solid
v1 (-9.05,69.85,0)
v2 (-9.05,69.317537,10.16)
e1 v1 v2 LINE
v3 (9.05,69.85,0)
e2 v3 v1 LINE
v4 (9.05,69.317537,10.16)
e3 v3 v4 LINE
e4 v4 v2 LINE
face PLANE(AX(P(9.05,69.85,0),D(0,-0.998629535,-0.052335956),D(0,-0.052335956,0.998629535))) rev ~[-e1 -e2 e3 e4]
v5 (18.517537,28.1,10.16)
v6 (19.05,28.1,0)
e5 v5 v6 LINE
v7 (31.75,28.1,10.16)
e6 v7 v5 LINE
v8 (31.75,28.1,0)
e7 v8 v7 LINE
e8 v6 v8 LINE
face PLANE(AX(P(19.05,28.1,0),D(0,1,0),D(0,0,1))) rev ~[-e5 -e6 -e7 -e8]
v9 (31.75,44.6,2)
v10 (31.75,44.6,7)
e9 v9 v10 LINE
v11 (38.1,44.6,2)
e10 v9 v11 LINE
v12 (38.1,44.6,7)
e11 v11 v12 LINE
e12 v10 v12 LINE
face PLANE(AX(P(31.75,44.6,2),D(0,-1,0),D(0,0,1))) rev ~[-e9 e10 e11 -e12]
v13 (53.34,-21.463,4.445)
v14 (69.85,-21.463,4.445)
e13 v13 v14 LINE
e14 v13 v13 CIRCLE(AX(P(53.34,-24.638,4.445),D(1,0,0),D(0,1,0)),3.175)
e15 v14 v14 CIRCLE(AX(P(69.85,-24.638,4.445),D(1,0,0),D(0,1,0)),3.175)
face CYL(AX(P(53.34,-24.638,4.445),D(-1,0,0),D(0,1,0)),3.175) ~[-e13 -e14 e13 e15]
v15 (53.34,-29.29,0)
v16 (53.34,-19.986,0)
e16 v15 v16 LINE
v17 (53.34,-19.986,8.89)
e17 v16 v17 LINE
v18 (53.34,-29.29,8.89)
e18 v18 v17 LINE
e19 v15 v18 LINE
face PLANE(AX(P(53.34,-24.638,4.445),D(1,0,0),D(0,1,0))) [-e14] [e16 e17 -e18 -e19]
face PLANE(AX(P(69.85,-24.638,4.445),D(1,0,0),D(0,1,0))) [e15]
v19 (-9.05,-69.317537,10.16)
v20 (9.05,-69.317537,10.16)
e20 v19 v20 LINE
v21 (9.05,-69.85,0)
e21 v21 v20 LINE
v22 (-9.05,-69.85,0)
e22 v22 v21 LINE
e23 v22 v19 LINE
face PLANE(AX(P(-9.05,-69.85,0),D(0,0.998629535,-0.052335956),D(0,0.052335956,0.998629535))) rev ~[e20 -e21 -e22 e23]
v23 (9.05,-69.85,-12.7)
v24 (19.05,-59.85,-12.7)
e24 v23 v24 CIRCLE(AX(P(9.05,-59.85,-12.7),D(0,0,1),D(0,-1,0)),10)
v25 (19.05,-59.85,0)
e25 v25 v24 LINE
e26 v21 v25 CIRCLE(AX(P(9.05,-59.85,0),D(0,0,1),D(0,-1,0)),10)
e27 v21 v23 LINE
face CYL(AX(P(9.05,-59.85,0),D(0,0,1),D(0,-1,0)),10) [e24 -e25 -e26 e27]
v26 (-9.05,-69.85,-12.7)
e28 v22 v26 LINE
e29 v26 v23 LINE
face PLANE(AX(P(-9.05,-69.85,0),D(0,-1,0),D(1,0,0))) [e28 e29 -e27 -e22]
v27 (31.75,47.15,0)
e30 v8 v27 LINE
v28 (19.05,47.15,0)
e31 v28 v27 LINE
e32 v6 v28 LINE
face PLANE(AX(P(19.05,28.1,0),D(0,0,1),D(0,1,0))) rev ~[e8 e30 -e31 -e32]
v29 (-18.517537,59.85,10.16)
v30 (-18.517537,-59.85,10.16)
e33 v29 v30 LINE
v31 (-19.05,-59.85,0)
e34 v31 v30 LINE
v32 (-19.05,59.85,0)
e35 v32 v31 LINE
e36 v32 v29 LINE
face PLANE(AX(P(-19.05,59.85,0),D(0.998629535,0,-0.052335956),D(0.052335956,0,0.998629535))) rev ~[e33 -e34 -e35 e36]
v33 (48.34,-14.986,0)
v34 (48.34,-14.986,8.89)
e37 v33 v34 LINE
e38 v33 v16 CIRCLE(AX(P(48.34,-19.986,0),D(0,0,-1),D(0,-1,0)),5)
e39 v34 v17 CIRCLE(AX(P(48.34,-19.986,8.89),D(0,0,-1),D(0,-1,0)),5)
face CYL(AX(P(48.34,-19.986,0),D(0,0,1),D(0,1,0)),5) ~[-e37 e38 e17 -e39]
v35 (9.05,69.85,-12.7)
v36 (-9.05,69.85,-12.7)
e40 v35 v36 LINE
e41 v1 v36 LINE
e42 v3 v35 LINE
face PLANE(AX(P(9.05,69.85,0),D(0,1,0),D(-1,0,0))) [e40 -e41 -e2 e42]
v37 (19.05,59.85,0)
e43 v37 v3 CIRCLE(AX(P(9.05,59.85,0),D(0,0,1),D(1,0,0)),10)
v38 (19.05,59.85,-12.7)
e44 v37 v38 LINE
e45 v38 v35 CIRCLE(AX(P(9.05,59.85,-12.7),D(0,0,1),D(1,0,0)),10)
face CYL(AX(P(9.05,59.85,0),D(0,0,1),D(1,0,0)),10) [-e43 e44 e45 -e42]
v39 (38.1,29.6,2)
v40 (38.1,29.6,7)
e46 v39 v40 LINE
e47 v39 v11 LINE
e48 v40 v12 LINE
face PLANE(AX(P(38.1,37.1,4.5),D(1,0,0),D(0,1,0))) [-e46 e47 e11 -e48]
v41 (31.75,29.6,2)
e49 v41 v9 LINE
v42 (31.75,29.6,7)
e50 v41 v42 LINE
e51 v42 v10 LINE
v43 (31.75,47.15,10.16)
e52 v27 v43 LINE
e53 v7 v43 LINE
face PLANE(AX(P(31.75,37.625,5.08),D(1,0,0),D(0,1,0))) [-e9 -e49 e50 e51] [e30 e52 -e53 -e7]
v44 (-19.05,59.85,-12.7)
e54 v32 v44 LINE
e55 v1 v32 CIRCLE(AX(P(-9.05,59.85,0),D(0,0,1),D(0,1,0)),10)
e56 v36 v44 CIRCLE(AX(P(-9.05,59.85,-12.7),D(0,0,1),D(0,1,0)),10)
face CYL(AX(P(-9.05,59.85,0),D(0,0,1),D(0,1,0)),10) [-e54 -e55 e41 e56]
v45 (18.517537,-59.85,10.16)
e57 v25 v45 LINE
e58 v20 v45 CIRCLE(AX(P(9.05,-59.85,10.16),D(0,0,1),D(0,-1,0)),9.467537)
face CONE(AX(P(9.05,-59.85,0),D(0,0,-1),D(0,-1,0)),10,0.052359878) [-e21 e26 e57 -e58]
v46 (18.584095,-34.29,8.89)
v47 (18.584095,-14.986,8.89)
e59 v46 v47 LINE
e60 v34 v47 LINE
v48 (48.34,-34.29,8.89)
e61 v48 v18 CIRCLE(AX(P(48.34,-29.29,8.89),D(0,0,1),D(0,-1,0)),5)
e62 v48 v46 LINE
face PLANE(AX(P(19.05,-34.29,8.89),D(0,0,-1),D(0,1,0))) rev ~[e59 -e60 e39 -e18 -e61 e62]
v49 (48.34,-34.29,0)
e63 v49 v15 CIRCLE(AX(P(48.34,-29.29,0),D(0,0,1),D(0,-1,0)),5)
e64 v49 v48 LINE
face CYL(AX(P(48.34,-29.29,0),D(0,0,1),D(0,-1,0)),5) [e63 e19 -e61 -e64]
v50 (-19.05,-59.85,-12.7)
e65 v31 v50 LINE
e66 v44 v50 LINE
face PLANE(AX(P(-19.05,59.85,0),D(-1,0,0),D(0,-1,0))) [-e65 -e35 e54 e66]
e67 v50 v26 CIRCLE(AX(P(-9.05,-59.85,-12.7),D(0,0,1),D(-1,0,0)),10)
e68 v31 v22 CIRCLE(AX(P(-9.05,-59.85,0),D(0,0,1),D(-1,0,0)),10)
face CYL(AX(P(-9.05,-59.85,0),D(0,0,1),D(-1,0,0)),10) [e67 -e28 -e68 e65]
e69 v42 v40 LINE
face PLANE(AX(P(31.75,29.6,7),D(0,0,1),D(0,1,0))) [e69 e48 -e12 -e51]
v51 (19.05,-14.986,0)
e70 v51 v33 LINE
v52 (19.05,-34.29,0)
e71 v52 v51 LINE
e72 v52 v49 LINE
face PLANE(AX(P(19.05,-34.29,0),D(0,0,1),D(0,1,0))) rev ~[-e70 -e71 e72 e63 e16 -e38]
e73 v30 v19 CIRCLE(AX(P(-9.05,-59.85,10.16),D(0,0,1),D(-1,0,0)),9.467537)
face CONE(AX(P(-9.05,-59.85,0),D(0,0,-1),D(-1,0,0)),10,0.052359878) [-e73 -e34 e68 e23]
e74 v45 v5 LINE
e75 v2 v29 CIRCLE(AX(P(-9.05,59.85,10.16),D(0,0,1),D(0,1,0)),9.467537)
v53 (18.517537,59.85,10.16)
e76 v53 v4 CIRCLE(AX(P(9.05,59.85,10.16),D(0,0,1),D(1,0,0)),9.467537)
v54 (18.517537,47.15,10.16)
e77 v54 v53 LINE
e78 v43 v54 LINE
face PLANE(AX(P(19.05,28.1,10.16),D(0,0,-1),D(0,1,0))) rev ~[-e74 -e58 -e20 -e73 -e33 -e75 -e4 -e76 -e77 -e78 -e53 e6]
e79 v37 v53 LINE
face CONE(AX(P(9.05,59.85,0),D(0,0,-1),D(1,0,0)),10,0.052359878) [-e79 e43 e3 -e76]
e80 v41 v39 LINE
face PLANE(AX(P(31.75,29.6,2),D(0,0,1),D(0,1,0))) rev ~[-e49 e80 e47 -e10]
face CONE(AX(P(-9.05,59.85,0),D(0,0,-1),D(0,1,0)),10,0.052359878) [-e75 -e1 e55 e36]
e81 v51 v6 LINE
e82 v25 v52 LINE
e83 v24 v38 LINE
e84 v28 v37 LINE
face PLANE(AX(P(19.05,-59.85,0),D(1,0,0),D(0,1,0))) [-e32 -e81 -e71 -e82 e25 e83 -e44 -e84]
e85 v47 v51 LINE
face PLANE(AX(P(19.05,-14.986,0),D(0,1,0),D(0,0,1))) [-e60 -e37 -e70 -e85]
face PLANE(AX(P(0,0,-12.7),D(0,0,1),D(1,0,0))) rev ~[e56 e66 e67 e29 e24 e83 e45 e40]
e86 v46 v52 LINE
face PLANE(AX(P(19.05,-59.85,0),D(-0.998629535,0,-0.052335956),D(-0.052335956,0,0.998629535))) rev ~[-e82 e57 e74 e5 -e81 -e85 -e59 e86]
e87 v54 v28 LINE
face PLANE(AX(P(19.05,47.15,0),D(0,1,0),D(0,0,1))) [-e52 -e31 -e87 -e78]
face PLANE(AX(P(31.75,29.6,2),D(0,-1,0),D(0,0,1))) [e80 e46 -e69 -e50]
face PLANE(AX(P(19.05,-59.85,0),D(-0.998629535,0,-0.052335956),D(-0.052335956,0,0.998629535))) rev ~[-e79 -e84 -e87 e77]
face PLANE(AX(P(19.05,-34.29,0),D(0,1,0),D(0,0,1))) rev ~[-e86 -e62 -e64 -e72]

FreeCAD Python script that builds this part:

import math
import FreeCAD as App
import Part
import Sketcher
Q = App.Units.Quantity


def edges_at(feature, points):
    """Names of the edges that pass closest to the given points."""
    edges = feature.Shape.Edges
    near = lambda p: min(range(len(edges)), key=lambda i: edges[i].distToShape(Part.Vertex(*p))[0])
    return sorted({f"Edge{near(p) + 1}" for p in points})


def add_polygon(sketch, points):
    """Adds a closed chain of lines whose ends are joined by coincident constraints."""
    first, n = sketch.GeometryCount, len(points)
    for a, b in zip(points, points[1:] + points[:1]):
        sketch.addGeometry(Part.LineSegment(App.Vector(*a, 0), App.Vector(*b, 0)), False)
    for i in range(n):
        sketch.addConstraint(Sketcher.Constraint("Coincident", first + i, 2, first + (i + 1) % n, 1))

doc = App.newDocument("Part")
body = doc.addObject("PartDesign::Body", "Body")

# Sketch on XY plane
sketch1 = body.newObject("Sketcher::SketchObject", "Sketch")
sketch1.AttachmentSupport = (doc.getObject("XY_Plane"), [""])
sketch1.MapMode = "FlatFace"
sketch1.addGeometry([
    Part.LineSegment(App.Vector(9, 70, 0), App.Vector(-9, 70, 0)),  # 0
    Part.ArcOfCircle(Part.Circle(App.Vector(-9, 60, 0), App.Vector(0, 0, 1), 10), math.radians(90), math.radians(180)),  # 1
    Part.LineSegment(App.Vector(-19, 60, 0), App.Vector(-19, -60, 0)),  # 2
    Part.ArcOfCircle(Part.Circle(App.Vector(-9, -60, 0), App.Vector(0, 0, 1), 10), math.radians(180), math.radians(270)),  # 3
    Part.LineSegment(App.Vector(-9, -70, 0), App.Vector(9, -70, 0)),  # 4
    Part.ArcOfCircle(Part.Circle(App.Vector(9, -60, 0), App.Vector(0, 0, 1), 10), math.radians(-90), math.radians(0)),  # 5
    Part.LineSegment(App.Vector(19, -60, 0), App.Vector(19, 60, 0)),  # 6
    Part.ArcOfCircle(Part.Circle(App.Vector(9, 60, 0), App.Vector(0, 0, 1), 10), math.radians(0), math.radians(90)),  # 7
], False)
sketch1.addConstraint([
    Sketcher.Constraint("Tangent", 0, 2, 1, 1),
    Sketcher.Constraint("Tangent", 1, 2, 2, 1),
    Sketcher.Constraint("Tangent", 2, 2, 3, 1),
    Sketcher.Constraint("Tangent", 3, 2, 4, 1),
    Sketcher.Constraint("Tangent", 4, 2, 5, 1),
    Sketcher.Constraint("Tangent", 5, 2, 6, 1),
    Sketcher.Constraint("Tangent", 6, 2, 7, 1),
    Sketcher.Constraint("Tangent", 7, 2, 0, 1),
    Sketcher.Constraint("Horizontal", 0),
    Sketcher.Constraint("Vertical", 2),
    Sketcher.Constraint("Horizontal", 4),
    Sketcher.Constraint("Vertical", 6),
    Sketcher.Constraint("Equal", 1, 3),
    Sketcher.Constraint("Equal", 3, 5),
    Sketcher.Constraint("Equal", 5, 7),
    Sketcher.Constraint("Symmetric", 1, 3, 5, 3, -1, 1),
    Sketcher.Constraint("DistanceX", 2, 2, 5, 2, Q("1.5 in")),
    Sketcher.Constraint("DistanceY", -1, 1, 0, 2, Q("2.75 in")),
    Sketcher.Constraint("Radius", 1, 10.0),
])
pad1 = body.newObject("PartDesign::Pad", "Pad")
pad1.Profile = sketch1
pad1.Length = Q("0.5 in")
pad1.Reversed = True
pad2 = body.newObject("PartDesign::Pad", "Pad001")
pad2.Profile = sketch1
pad2.Length = Q("0.4 in")
pad2.TaperAngle = -3

# Sketch on YZ plane
sketch2 = body.newObject("Sketcher::SketchObject", "Sketch001")
sketch2.AttachmentSupport = (doc.getObject("YZ_Plane"), [""])
sketch2.MapMode = "FlatFace"
sketch2.AttachmentOffset = App.Placement(App.Vector(0, 0, 0.75 * 25.4), App.Rotation())
add_polygon(sketch2, [(-34, 9), (-34, 0), (-15, 0), (-15, 9)])  # lines 0-3
sketch2.addConstraint([
    Sketcher.Constraint("Vertical", 0),
    Sketcher.Constraint("Horizontal", 1),
    Sketcher.Constraint("Vertical", 2),
    Sketcher.Constraint("Horizontal", 3),
    Sketcher.Constraint("PointOnObject", 0, 2, -1),
    Sketcher.Constraint("DistanceX", 1, 1, 1, 2, Q("0.76 in")),
    Sketcher.Constraint("DistanceY", 0, 2, 0, 1, Q("0.35 in")),
    Sketcher.Constraint("DistanceX", 0, 2, -1, 1, Q("1.35 in")),
])
pad3 = body.newObject("PartDesign::Pad", "Pad002")
pad3.Profile = sketch2
pad3.Type = "TwoLengths"
pad3.Length = Q("1.35 in")
pad3.Length2 = 0.465905
doc.recompute()

fillet = body.newObject("PartDesign::Fillet", "Fillet")
fillet.Base = (pad3, edges_at(pad3, [(53.34, -34.29, 4.445), (53.34, -14.986, 4.445)]))
fillet.Radius = 5

# Sketch on YZ plane
sketch3 = body.newObject("Sketcher::SketchObject", "Sketch002")
sketch3.AttachmentSupport = (doc.getObject("YZ_Plane"), [""])
sketch3.MapMode = "FlatFace"
sketch3.AttachmentOffset = App.Placement(App.Vector(0, 0, 2.1 * 25.4), App.Rotation())
sketch3.addGeometry(Part.Circle(App.Vector(-24.6, 4.4, 0), App.Vector(0, 0, 1), 3.2), False)
sketch3.addConstraint([
    Sketcher.Constraint("Diameter", 0, Q("0.25 in")),
    Sketcher.Constraint("DistanceX", 0, 3, -1, 1, Q("0.97 in")),
    Sketcher.Constraint("DistanceY", -1, 1, 0, 3, Q("0.175 in")),
])
pad4 = body.newObject("PartDesign::Pad", "Pad003")
pad4.Profile = sketch3
pad4.Length = Q("0.65 in")

# Sketch on YZ plane
sketch4 = body.newObject("Sketcher::SketchObject", "Sketch003")
sketch4.AttachmentSupport = (doc.getObject("YZ_Plane"), [""])
sketch4.MapMode = "FlatFace"
sketch4.AttachmentOffset = App.Placement(App.Vector(0, 0, 0.75 * 25.4), App.Rotation())
add_polygon(sketch4, [(28, 10), (28, 0), (47, 0), (47, 10)])  # lines 0-3
sketch4.addConstraint([
    Sketcher.Constraint("Vertical", 0),
    Sketcher.Constraint("Horizontal", 1),
    Sketcher.Constraint("Vertical", 2),
    Sketcher.Constraint("Horizontal", 3),
    Sketcher.Constraint("PointOnObject", 0, 2, -1),
    Sketcher.Constraint("DistanceY", 0, 2, 0, 1, Q("0.4 in")),
    Sketcher.Constraint("DistanceX", 1, 1, 1, 2, Q("0.75 in")),
    Sketcher.Constraint("DistanceX", -1, 1, 0, 2, 28.1),
])
pad5 = body.newObject("PartDesign::Pad", "Pad004")
pad5.Profile = sketch4
pad5.Type = "TwoLengths"
pad5.Length = Q("0.5 in")
pad5.Length2 = 0.532463

# Sketch on YZ plane
sketch5 = body.newObject("Sketcher::SketchObject", "Sketch004")
sketch5.AttachmentSupport = (doc.getObject("YZ_Plane"), [""])
sketch5.MapMode = "FlatFace"
sketch5.AttachmentOffset = App.Placement(App.Vector(0, 0, 1.25 * 25.4), App.Rotation())
add_polygon(sketch5, [(30, 7), (30, 2), (45, 2), (45, 7)])  # lines 0-3
sketch5.addConstraint([
    Sketcher.Constraint("Vertical", 0),
    Sketcher.Constraint("Horizontal", 1),
    Sketcher.Constraint("Vertical", 2),
    Sketcher.Constraint("Horizontal", 3),
    Sketcher.Constraint("DistanceX", 1, 1, 1, 2, 15.0),
    Sketcher.Constraint("DistanceY", 0, 2, 0, 1, 5.0),
    Sketcher.Constraint("DistanceX", -1, 1, 0, 2, 29.6),
    Sketcher.Constraint("DistanceY", -1, 1, 0, 2, 2.0),
])
pad6 = body.newObject("PartDesign::Pad", "Pad005")
pad6.Profile = sketch5
pad6.Length = Q("0.25 in")

doc.recompute()
